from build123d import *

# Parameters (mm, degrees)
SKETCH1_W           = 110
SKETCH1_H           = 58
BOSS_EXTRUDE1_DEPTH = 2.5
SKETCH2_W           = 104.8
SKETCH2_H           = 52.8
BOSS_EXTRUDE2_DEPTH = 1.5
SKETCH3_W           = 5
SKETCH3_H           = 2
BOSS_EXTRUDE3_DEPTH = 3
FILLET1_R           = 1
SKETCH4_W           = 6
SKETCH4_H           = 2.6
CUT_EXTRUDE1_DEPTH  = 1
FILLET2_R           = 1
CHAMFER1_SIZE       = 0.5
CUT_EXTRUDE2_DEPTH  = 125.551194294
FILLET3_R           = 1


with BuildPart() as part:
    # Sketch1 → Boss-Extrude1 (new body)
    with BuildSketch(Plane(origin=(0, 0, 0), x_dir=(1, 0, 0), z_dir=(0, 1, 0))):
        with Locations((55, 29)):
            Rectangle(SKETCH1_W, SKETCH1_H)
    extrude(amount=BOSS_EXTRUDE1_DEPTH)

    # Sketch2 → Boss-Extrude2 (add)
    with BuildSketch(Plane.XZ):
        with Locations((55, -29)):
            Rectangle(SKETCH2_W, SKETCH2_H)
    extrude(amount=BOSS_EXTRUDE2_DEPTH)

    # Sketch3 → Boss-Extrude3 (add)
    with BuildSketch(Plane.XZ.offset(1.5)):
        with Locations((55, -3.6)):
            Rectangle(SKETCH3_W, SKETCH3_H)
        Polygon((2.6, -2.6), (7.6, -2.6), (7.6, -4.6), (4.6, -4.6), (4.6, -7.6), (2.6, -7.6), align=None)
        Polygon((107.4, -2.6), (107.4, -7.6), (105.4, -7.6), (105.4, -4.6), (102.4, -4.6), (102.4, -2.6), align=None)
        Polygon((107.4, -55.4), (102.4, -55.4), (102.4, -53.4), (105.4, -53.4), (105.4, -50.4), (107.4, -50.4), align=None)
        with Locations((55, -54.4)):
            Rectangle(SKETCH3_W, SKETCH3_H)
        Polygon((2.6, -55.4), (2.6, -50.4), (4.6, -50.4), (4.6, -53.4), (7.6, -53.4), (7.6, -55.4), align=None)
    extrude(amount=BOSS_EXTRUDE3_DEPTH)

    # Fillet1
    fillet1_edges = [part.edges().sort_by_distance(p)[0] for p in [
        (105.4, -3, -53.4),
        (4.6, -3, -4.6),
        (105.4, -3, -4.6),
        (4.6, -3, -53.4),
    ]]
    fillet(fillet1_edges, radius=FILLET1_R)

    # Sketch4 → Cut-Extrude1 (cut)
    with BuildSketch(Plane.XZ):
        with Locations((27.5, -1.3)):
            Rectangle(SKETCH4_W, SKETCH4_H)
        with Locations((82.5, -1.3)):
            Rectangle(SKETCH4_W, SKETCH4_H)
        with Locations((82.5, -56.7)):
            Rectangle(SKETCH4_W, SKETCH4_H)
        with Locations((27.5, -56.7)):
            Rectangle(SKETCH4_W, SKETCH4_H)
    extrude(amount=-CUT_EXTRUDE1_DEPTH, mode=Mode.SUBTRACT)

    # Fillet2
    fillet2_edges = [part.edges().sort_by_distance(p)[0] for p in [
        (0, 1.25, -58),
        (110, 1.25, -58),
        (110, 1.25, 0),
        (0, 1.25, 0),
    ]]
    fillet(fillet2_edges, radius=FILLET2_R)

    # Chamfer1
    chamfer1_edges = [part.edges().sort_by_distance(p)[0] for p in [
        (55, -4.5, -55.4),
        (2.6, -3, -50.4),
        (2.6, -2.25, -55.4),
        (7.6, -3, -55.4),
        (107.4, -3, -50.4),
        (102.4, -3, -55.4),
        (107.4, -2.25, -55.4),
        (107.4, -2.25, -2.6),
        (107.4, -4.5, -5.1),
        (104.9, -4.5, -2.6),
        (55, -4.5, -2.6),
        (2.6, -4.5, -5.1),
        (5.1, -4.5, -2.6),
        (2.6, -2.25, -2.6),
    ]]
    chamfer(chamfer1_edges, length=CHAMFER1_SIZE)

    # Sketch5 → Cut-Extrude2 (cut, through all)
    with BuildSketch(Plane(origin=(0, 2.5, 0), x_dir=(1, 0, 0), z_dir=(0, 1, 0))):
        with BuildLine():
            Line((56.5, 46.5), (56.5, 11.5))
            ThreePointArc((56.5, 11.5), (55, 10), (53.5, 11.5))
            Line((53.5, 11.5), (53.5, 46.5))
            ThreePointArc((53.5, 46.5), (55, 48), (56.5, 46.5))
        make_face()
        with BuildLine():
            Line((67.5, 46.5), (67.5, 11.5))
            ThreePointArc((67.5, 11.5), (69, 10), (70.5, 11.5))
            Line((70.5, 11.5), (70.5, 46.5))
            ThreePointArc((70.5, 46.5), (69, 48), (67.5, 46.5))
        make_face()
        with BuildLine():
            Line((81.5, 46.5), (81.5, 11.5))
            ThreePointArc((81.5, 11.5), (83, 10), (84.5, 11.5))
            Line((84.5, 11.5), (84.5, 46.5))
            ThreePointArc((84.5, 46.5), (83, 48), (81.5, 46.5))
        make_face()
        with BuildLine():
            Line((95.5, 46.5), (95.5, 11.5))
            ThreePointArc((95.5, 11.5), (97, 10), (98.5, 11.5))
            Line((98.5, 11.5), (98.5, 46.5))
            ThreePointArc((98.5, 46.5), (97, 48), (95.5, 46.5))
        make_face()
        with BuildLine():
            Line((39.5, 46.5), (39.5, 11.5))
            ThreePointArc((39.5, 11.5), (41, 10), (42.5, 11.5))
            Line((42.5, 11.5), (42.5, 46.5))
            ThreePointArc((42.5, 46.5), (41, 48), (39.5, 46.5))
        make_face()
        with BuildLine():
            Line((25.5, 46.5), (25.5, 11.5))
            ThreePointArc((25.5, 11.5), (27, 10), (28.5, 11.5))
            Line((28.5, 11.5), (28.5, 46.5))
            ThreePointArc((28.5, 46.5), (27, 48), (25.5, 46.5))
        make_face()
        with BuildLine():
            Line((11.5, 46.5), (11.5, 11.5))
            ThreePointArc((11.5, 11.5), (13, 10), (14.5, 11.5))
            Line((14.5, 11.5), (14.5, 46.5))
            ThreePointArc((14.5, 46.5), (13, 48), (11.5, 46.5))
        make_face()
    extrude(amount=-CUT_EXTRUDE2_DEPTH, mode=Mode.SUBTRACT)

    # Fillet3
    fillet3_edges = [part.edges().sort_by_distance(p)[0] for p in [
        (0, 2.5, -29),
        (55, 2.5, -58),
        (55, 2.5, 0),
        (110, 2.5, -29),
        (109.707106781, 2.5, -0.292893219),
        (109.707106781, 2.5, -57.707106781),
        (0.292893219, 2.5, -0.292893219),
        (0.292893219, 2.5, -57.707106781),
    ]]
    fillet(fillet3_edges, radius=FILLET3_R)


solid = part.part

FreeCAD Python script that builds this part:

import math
import FreeCAD as App
import Part
import Sketcher

V = App.Vector
Q = App.Units.Quantity


def edges_at(feature, points):
    """Names of the edges that pass closest to the given points."""
    edges = feature.Shape.Edges
    near = lambda p: min(range(len(edges)), key=lambda i: edges[i].distToShape(Part.Vertex(*p))[0])
    return sorted({f"Edge{near(p) + 1}" for p in points})


def add_polygon(sketch, points):
    """Adds a closed chain of lines whose ends are joined by coincident constraints."""
    first, n = sketch.GeometryCount, len(points)
    for a, b in zip(points, points[1:] + points[:1]):
        sketch.addGeometry(Part.LineSegment(App.Vector(*a, 0), App.Vector(*b, 0)), False)
    for i in range(n):
        sketch.addConstraint(Sketcher.Constraint("Coincident", first + i, 2, first + (i + 1) % n, 1))

doc = App.newDocument("Part")
body = doc.addObject("PartDesign::Body", "Body")

sketch1 = body.newObject("Sketcher::SketchObject", "Sketch")
sketch1.AttachmentSupport = (doc.getObject("XZ_Plane"), [""])
sketch1.MapMode = "FlatFace"
add_polygon(sketch1, [(0, -58), (0, 0), (110, 0), (110, -58)])
sketch1.addConstraint([
    Sketcher.Constraint("Vertical", 0),
    Sketcher.Constraint("Horizontal", 1),
    Sketcher.Constraint("Vertical", 2),
    Sketcher.Constraint("Horizontal", 3),
    Sketcher.Constraint("Coincident", 0, 2, -1, 1),
    Sketcher.Constraint("DistanceX", 1, 1, 1, 2, Q("110 mm")),
    Sketcher.Constraint("DistanceY", 0, 1, 0, 2, Q("58 mm")),
])
pad1 = body.newObject("PartDesign::Pad", "Pad")
pad1.Profile = sketch1
pad1.Length = 2.5
pad1.Reversed = True

sketch2 = body.newObject("Sketcher::SketchObject", "Sketch001")
sketch2.AttachmentSupport = (doc.getObject("XZ_Plane"), [""])
sketch2.MapMode = "FlatFace"
add_polygon(sketch2, [(3, -3), (3, -55), (107, -55), (107, -3)])
sketch2.addConstraint([
    Sketcher.Constraint("Vertical", 0),
    Sketcher.Constraint("Horizontal", 1),
    Sketcher.Constraint("Vertical", 2),
    Sketcher.Constraint("Horizontal", 3),
    Sketcher.Constraint("DistanceX", 1, 1, 1, 2, Q("104.8 mm")),
    Sketcher.Constraint("DistanceY", 0, 2, 0, 1, Q("52.8 mm")),
    Sketcher.Constraint("DistanceX", -1, 1, 0, 2, Q("2.6 mm")),
    Sketcher.Constraint("DistanceY", 0, 2, -1, 1, Q("55.4 mm")),
])
pad2 = body.newObject("PartDesign::Pad", "Pad001")
pad2.Profile = sketch2
pad2.Length = 1.5

sketch3 = body.newObject("Sketcher::SketchObject", "Sketch002")
sketch3.AttachmentSupport = (doc.getObject("XZ_Plane"), [""])
sketch3.MapMode = "FlatFace"
sketch3.AttachmentOffset = App.Placement(V(0, 0, 1.5), App.Rotation())
add_polygon(sketch3, [(52.5, -2.6), (52.5, -4.6), (57.5, -4.6), (57.5, -2.6)])
add_polygon(sketch3, [(7.6, -2.6), (2.6, -2.6), (2.6, -7.6), (4.6, -7.6), (4.6, -4.6), (7.6, -4.6)])
add_polygon(sketch3, [(107.4, -7.6), (107.4, -2.6), (102.4, -2.6), (102.4, -4.6), (105.4, -4.6), (105.4, -7.6)])
add_polygon(sketch3, [(102.4, -55.4), (107.4, -55.4), (107.4, -50.4), (105.4, -50.4), (105.4, -53.4), (102.4, -53.4)])
add_polygon(sketch3, [(52.5, -53.4), (52.5, -55.4), (57.5, -55.4), (57.5, -53.4)])
add_polygon(sketch3, [(2.6, -50.4), (2.6, -55.4), (7.6, -55.4), (7.6, -53.4), (4.6, -53.4), (4.6, -50.4)])
sketch3.addConstraint([
    Sketcher.Constraint("Vertical", 0),
    Sketcher.Constraint("Horizontal", 1),
    Sketcher.Constraint("Vertical", 2),
    Sketcher.Constraint("Horizontal", 3),
    Sketcher.Constraint("Horizontal", 4),
    Sketcher.Constraint("Vertical", 5),
    Sketcher.Constraint("Horizontal", 6),
    Sketcher.Constraint("Vertical", 7),
    Sketcher.Constraint("Horizontal", 8),
    Sketcher.Constraint("Vertical", 9),
    Sketcher.Constraint("Vertical", 10),
    Sketcher.Constraint("Horizontal", 11),
    Sketcher.Constraint("Vertical", 12),
    Sketcher.Constraint("Horizontal", 13),
    Sketcher.Constraint("Vertical", 14),
    Sketcher.Constraint("Horizontal", 15),
    Sketcher.Constraint("Horizontal", 16),
    Sketcher.Constraint("Vertical", 17),
    Sketcher.Constraint("Horizontal", 18),
    Sketcher.Constraint("Vertical", 19),
    Sketcher.Constraint("Horizontal", 20),
    Sketcher.Constraint("Vertical", 21),
    Sketcher.Constraint("Vertical", 22),
    Sketcher.Constraint("Horizontal", 23),
    Sketcher.Constraint("Vertical", 24),
    Sketcher.Constraint("Horizontal", 25),
    Sketcher.Constraint("Vertical", 26),
    Sketcher.Constraint("Horizontal", 27),
    Sketcher.Constraint("Vertical", 28),
    Sketcher.Constraint("Horizontal", 29),
    Sketcher.Constraint("Vertical", 30),
    Sketcher.Constraint("Horizontal", 31),
    Sketcher.Constraint("Horizontal", 3, 2, 4, 2),
    Sketcher.Constraint("Horizontal", 1, 2, 7, 2),
    Sketcher.Constraint("Horizontal", 9, 2, 10, 2),
    Sketcher.Constraint("Horizontal", 8, 2, 12, 2),
    Sketcher.Constraint("Horizontal", 6, 2, 14, 2),
    Sketcher.Constraint("Horizontal", 21, 2, 22, 2),
    Sketcher.Constraint("Horizontal", 20, 2, 24, 2),
    Sketcher.Constraint("Horizontal", 23, 2, 26, 2),
    Sketcher.Constraint("Horizontal", 25, 2, 28, 2),
    Sketcher.Constraint("Horizontal", 18, 2, 30, 2),
    Sketcher.Constraint("Vertical", 15, 2, 16, 2),
    Sketcher.Constraint("Vertical", 14, 2, 18, 2),
    Sketcher.Constraint("Vertical", 12, 2, 20, 2),
    Sketcher.Constraint("Vertical", 3, 2, 22, 2),
    Sketcher.Constraint("Vertical", 2, 2, 23, 2),
    Sketcher.Constraint("Vertical", 5, 2, 26, 2),
    Sketcher.Constraint("Vertical", 9, 2, 27, 2),
    Sketcher.Constraint("Vertical", 7, 2, 29, 2),
    Sketcher.Constraint("Equal", 3, 4),
    Sketcher.Constraint("Equal", 4, 11),
    Sketcher.Constraint("Equal", 8, 13),
    Sketcher.Constraint("Equal", 31, 0),
    Sketcher.Constraint("Equal", 27, 5),
    Sketcher.Constraint("Equal", 10, 17),
    Sketcher.Constraint("Equal", 14, 19),
    Sketcher.Constraint("DistanceX", 1, 1, 1, 2, Q("5 mm")),
    Sketcher.Constraint("DistanceX", 6, 1, 6, 2, Q("2 mm")),
    Sketcher.Constraint("DistanceX", -1, 1, 0, 2, Q("52.5 mm")),
    Sketcher.Constraint("DistanceY", 0, 2, -1, 1, Q("4.6 mm")),
    Sketcher.Constraint("DistanceX", -1, 1, 4, 2, Q("2.6 mm")),
    Sketcher.Constraint("DistanceX", -1, 1, 10, 2, Q("107.4 mm")),
    Sketcher.Constraint("DistanceY", 16, 2, -1, 1, Q("55.4 mm")),
])
pad3 = body.newObject("PartDesign::Pad", "Pad002")
pad3.Profile = sketch3
pad3.Length = 3
doc.recompute()

fillet = body.newObject("PartDesign::Fillet", "Fillet")
fillet.Base = (pad3, edges_at(pad3, [
    (105.4, -3, -53.4),
    (4.6, -3, -4.6),
    (105.4, -3, -4.6),
    (4.6, -3, -53.4),
]))
fillet.Radius = 1

sketch4 = body.newObject("Sketcher::SketchObject", "Sketch003")
sketch4.AttachmentSupport = (doc.getObject("XZ_Plane"), [""])
sketch4.MapMode = "FlatFace"
add_polygon(sketch4, [(24.5, 0), (24.5, -2.6), (30.5, -2.6), (30.5, 0)])
add_polygon(sketch4, [(79.5, 0), (79.5, -2.6), (85.5, -2.6), (85.5, 0)])
add_polygon(sketch4, [(79.5, -55.4), (79.5, -58), (85.5, -58), (85.5, -55.4)])
add_polygon(sketch4, [(24.5, -55.4), (24.5, -58), (30.5, -58), (30.5, -55.4)])
sketch4.addConstraint([
    Sketcher.Constraint("Vertical", 0),
    Sketcher.Constraint("Horizontal", 1),
    Sketcher.Constraint("Vertical", 2),
    Sketcher.Constraint("Horizontal", 3),
    Sketcher.Constraint("Vertical", 4),
    Sketcher.Constraint("Horizontal", 5),
    Sketcher.Constraint("Vertical", 6),
    Sketcher.Constraint("Horizontal", 7),
    Sketcher.Constraint("Vertical", 8),
    Sketcher.Constraint("Horizontal", 9),
    Sketcher.Constraint("Vertical", 10),
    Sketcher.Constraint("Horizontal", 11),
    Sketcher.Constraint("Vertical", 12),
    Sketcher.Constraint("Horizontal", 13),
    Sketcher.Constraint("Vertical", 14),
    Sketcher.Constraint("Horizontal", 15),
    Sketcher.Constraint("PointOnObject", 2, 2, -1),
    Sketcher.Constraint("PointOnObject", 6, 2, -1),
    Sketcher.Constraint("Horizontal", 1, 2, 4, 2),
    Sketcher.Constraint("Horizontal", 9, 2, 12, 2),
    Sketcher.Constraint("Horizontal", 11, 2, 14, 2),
    Sketcher.Constraint("Vertical", 7, 2, 8, 2),
    Sketcher.Constraint("Vertical", 6, 2, 9, 2),
    Sketcher.Constraint("Vertical", 3, 2, 12, 2),
    Sketcher.Constraint("Vertical", 2, 2, 13, 2),
    Sketcher.Constraint("Equal", 3, 5),
    Sketcher.Constraint("Equal", 6, 8),
    Sketcher.Constraint("DistanceX", 1, 1, 1, 2, Q("6 mm")),
    Sketcher.Constraint("DistanceY", 0, 2, 0, 1, Q("2.6 mm")),
    Sketcher.Constraint("DistanceY", 8, 2, -1, 1, Q("58 mm")),
    Sketcher.Constraint("DistanceX", 1, 2, 4, 2, Q("49 mm")),
    Sketcher.Constraint("DistanceX", -1, 1, 0, 2, Q("24.5 mm")),
])
pocket1 = body.newObject("PartDesign::Pocket", "Pocket")
pocket1.Profile = sketch4
pocket1.Length = 1
doc.recompute()

fillet2 = body.newObject("PartDesign::Fillet", "Fillet001")
fillet2.Base = (pocket1, edges_at(pocket1, [
    (0, 1.25, -58),
    (110, 1.25, -58),
    (110, 1.25, 0),
    (0, 1.25, 0),
]))
fillet2.Radius = 1
doc.recompute()

chamfer = body.newObject("PartDesign::Chamfer", "Chamfer")
chamfer.Base = (fillet2, edges_at(fillet2, [
    (55, -4.5, -55.4),
    (2.6, -3, -50.4),
    (2.6, -2.25, -55.4),
    (7.6, -3, -55.4),
    (107.4, -3, -50.4),
    (102.4, -3, -55.4),
    (107.4, -2.25, -55.4),
    (107.4, -2.25, -2.6),
    (107.4, -4.5, -5.1),
    (104.9, -4.5, -2.6),
    (55, -4.5, -2.6),
    (2.6, -4.5, -5.1),
    (5.1, -4.5, -2.6),
    (2.6, -2.25, -2.6),
]))
chamfer.Size = 0.5

sketch5 = body.newObject("Sketcher::SketchObject", "Sketch004")
sketch5.AttachmentSupport = (doc.getObject("XZ_Plane"), [""])
sketch5.MapMode = "FlatFace"
sketch5.AttachmentOffset = App.Placement(V(0, 0, -2.5), App.Rotation())
sketch5.addGeometry([
    Part.LineSegment(V(56.5, -11.5, 0), V(56.5, -46.5, 0)),
    Part.ArcOfCircle(Part.Circle(V(55, -46.5, 0), V(0, 0, 1), 1.5), math.radians(180), math.radians(360)),
    Part.LineSegment(V(53.5, -46.5, 0), V(53.5, -11.5, 0)),
    Part.ArcOfCircle(Part.Circle(V(55, -11.5, 0), V(0, 0, 1), 1.5), math.radians(0), math.radians(180)),
    Part.LineSegment(V(67.5, -46.5, 0), V(67.5, -11.5, 0)),
    Part.ArcOfCircle(Part.Circle(V(69, -11.5, 0), V(0, 0, 1), 1.5), math.radians(0), math.radians(180)),
    Part.LineSegment(V(70.5, -11.5, 0), V(70.5, -46.5, 0)),
    Part.ArcOfCircle(Part.Circle(V(69, -46.5, 0), V(0, 0, 1), 1.5), math.radians(180), math.radians(360)),
    Part.LineSegment(V(81.5, -46.5, 0), V(81.5, -11.5, 0)),
    Part.ArcOfCircle(Part.Circle(V(83, -11.5, 0), V(0, 0, 1), 1.5), math.radians(0), math.radians(180)),
    Part.LineSegment(V(84.5, -11.5, 0), V(84.5, -46.5, 0)),
    Part.ArcOfCircle(Part.Circle(V(83, -46.5, 0), V(0, 0, 1), 1.5), math.radians(180), math.radians(360)),
    Part.LineSegment(V(95.5, -46.5, 0), V(95.5, -11.5, 0)),
    Part.ArcOfCircle(Part.Circle(V(97, -11.5, 0), V(0, 0, 1), 1.5), math.radians(0), math.radians(180)),
    Part.LineSegment(V(98.5, -11.5, 0), V(98.5, -46.5, 0)),
    Part.ArcOfCircle(Part.Circle(V(97, -46.5, 0), V(0, 0, 1), 1.5), math.radians(180), math.radians(360)),
    Part.LineSegment(V(39.5, -46.5, 0), V(39.5, -11.5, 0)),
    Part.ArcOfCircle(Part.Circle(V(41, -11.5, 0), V(0, 0, 1), 1.5), math.radians(0), math.radians(180)),
    Part.LineSegment(V(42.5, -11.5, 0), V(42.5, -46.5, 0)),
    Part.ArcOfCircle(Part.Circle(V(41, -46.5, 0), V(0, 0, 1), 1.5), math.radians(180), math.radians(360)),
    Part.LineSegment(V(25.5, -46.5, 0), V(25.5, -11.5, 0)),
    Part.ArcOfCircle(Part.Circle(V(27, -11.5, 0), V(0, 0, 1), 1.5), math.radians(0), math.radians(180)),
    Part.LineSegment(V(28.5, -11.5, 0), V(28.5, -46.5, 0)),
    Part.ArcOfCircle(Part.Circle(V(27, -46.5, 0), V(0, 0, 1), 1.5), math.radians(180), math.radians(360)),
    Part.LineSegment(V(11.5, -46.5, 0), V(11.5, -11.5, 0)),
    Part.ArcOfCircle(Part.Circle(V(13, -11.5, 0), V(0, 0, 1), 1.5), math.radians(0), math.radians(180)),
    Part.LineSegment(V(14.5, -11.5, 0), V(14.5, -46.5, 0)),
    Part.ArcOfCircle(Part.Circle(V(13, -46.5, 0), V(0, 0, 1), 1.5), math.radians(180), math.radians(360)),
], False)
sketch5.addConstraint([
    Sketcher.Constraint("Tangent", 0, 2, 1, 2),
    Sketcher.Constraint("Tangent", 1, 1, 2, 1),
    Sketcher.Constraint("Tangent", 2, 2, 3, 2),
    Sketcher.Constraint("Tangent", 3, 1, 0, 1),
    Sketcher.Constraint("Tangent", 4, 2, 5, 2),
    Sketcher.Constraint("Tangent", 5, 1, 6, 1),
    Sketcher.Constraint("Tangent", 6, 2, 7, 2),
    Sketcher.Constraint("Tangent", 7, 1, 4, 1),
    Sketcher.Constraint("Tangent", 8, 2, 9, 2),
    Sketcher.Constraint("Tangent", 9, 1, 10, 1),
    Sketcher.Constraint("Tangent", 10, 2, 11, 2),
    Sketcher.Constraint("Tangent", 11, 1, 8, 1),
    Sketcher.Constraint("Tangent", 12, 2, 13, 2),
    Sketcher.Constraint("Tangent", 13, 1, 14, 1),
    Sketcher.Constraint("Tangent", 14, 2, 15, 2),
    Sketcher.Constraint("Tangent", 15, 1, 12, 1),
    Sketcher.Constraint("Tangent", 16, 2, 17, 2),
    Sketcher.Constraint("Tangent", 17, 1, 18, 1),
    Sketcher.Constraint("Tangent", 18, 2, 19, 2),
    Sketcher.Constraint("Tangent", 19, 1, 16, 1),
    Sketcher.Constraint("Tangent", 20, 2, 21, 2),
    Sketcher.Constraint("Tangent", 21, 1, 22, 1),
    Sketcher.Constraint("Tangent", 22, 2, 23, 2),
    Sketcher.Constraint("Tangent", 23, 1, 20, 1),
    Sketcher.Constraint("Tangent", 24, 2, 25, 2),
    Sketcher.Constraint("Tangent", 25, 1, 26, 1),
    Sketcher.Constraint("Tangent", 26, 2, 27, 2),
    Sketcher.Constraint("Tangent", 27, 1, 24, 1),
    Sketcher.Constraint("Vertical", 0),
    Sketcher.Constraint("Vertical", 2),
    Sketcher.Constraint("Vertical", 4),
    Sketcher.Constraint("Vertical", 6),
    Sketcher.Constraint("Vertical", 8),
    Sketcher.Constraint("Vertical", 10),
    Sketcher.Constraint("Vertical", 12),
    Sketcher.Constraint("Vertical", 14),
    Sketcher.Constraint("Vertical", 16),
    Sketcher.Constraint("Vertical", 18),
    Sketcher.Constraint("Vertical", 20),
    Sketcher.Constraint("Vertical", 22),
    Sketcher.Constraint("Vertical", 24),
    Sketcher.Constraint("Vertical", 26),
    Sketcher.Constraint("Equal", 3, 5),
    Sketcher.Constraint("Equal", 7, 9),
    Sketcher.Constraint("Equal", 11, 13),
    Sketcher.Constraint("Equal", 15, 17),
    Sketcher.Constraint("Equal", 19, 21),
    Sketcher.Constraint("Equal", 23, 25),
    Sketcher.Constraint("Horizontal", 3, 3, 5, 3),
    Sketcher.Constraint("Horizontal", 1, 3, 7, 3),
    Sketcher.Constraint("Horizontal", 5, 3, 9, 3),
    Sketcher.Constraint("Horizontal", 7, 3, 11, 3),
    Sketcher.Constraint("Horizontal", 9, 3, 13, 3),
    Sketcher.Constraint("Horizontal", 11, 3, 15, 3),
    Sketcher.Constraint("Horizontal", 13, 3, 17, 3),
    Sketcher.Constraint("Horizontal", 15, 3, 19, 3),
    Sketcher.Constraint("Horizontal", 17, 3, 21, 3),
    Sketcher.Constraint("Horizontal", 19, 3, 23, 3),
    Sketcher.Constraint("Horizontal", 21, 3, 25, 3),
    Sketcher.Constraint("Horizontal", 23, 3, 27, 3),
    Sketcher.Constraint("Radius", 1, Q("1.5 mm")),
    Sketcher.Constraint("DistanceY", 0, 2, 0, 1, Q("35 mm")),
    Sketcher.Constraint("DistanceX", -1, 1, 1, 3, Q("55 mm")),
    Sketcher.Constraint("DistanceX", -1, 1, 5, 3, Q("69 mm")),
    Sketcher.Constraint("DistanceX", -1, 1, 9, 3, Q("83 mm")),
    Sketcher.Constraint("DistanceX", -1, 1, 13, 3, Q("97 mm")),
    Sketcher.Constraint("DistanceX", -1, 1, 17, 3, Q("41 mm")),
    Sketcher.Constraint("DistanceX", -1, 1, 21, 3, Q("27 mm")),
    Sketcher.Constraint("DistanceX", -1, 1, 25, 3, Q("13 mm")),
    Sketcher.Constraint("DistanceY", 1, 3, -1, 1, Q("46.5 mm")),
])
pocket2 = body.newObject("PartDesign::Pocket", "Pocket001")
pocket2.Profile = sketch5
pocket2.Type = "ThroughAll"
pocket2.Reversed = True
doc.recompute()

fillet3 = body.newObject("PartDesign::Fillet", "Fillet002")
fillet3.Base = (pocket2, edges_at(pocket2, [
    (0, 2.5, -29),
    (55, 2.5, -58),
    (55, 2.5, 0),
    (110, 2.5, -29),
    (109.707, 2.5, -0.293),
    (109.707, 2.5, -57.707),
    (0.293, 2.5, -0.293),
    (0.293, 2.5, -57.707),
]))
fillet3.Radius = 1

doc.recompute()
